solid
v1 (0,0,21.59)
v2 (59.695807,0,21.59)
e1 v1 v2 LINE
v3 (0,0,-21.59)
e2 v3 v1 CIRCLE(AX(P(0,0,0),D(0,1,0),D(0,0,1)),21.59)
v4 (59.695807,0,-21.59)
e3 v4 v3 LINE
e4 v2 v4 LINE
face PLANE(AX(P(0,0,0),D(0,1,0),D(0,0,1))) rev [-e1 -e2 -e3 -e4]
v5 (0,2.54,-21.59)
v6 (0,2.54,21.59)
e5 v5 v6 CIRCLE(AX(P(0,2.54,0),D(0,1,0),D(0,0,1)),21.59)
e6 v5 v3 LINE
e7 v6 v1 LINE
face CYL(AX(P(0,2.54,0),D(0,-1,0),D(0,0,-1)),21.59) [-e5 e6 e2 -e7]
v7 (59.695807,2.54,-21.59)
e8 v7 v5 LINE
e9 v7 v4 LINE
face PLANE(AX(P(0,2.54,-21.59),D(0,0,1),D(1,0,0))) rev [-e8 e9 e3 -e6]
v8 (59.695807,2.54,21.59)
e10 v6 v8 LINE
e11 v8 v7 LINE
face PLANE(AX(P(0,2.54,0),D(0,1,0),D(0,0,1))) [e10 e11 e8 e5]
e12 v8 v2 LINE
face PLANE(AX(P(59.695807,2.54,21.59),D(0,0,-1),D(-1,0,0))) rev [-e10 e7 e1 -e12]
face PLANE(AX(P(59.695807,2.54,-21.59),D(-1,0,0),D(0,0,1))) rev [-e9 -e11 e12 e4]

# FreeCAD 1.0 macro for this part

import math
import FreeCAD as App
import Part
import Sketcher
from FreeCAD import Vector
Q = App.Units.Quantity

doc = App.newDocument("Part")
body = doc.addObject("PartDesign::Body", "Body")

# Sketch on XZ plane
sketch1 = body.newObject("Sketcher::SketchObject", "Sketch")
sketch1.AttachmentSupport = (doc.getObject("XZ_Plane"), [""])
sketch1.MapMode = "FlatFace"
sketch1.addGeometry(Part.LineSegment(Vector(60, -22, 0), Vector(0, -22, 0)), False)
sketch1.addGeometry(Part.ArcOfCircle(Part.Circle(Vector(0, 0, 0), Vector(0, 0, 1), 22), math.radians(90), math.radians(270)), False)
sketch1.addGeometry(Part.LineSegment(Vector(0, 22, 0), Vector(60, 22, 0)), False)
sketch1.addGeometry(Part.LineSegment(Vector(60, 22, 0), Vector(60, -22, 0)), False)
sketch1.addConstraint(Sketcher.Constraint("Tangent", 0, 2, 1, 2))
sketch1.addConstraint(Sketcher.Constraint("Tangent", 1, 1, 2, 1))
sketch1.addConstraint(Sketcher.Constraint("Coincident", 2, 2, 3, 1))
sketch1.addConstraint(Sketcher.Constraint("Coincident", 3, 2, 0, 1))
sketch1.addConstraint(Sketcher.Constraint("Horizontal", 0))
sketch1.addConstraint(Sketcher.Constraint("Horizontal", 2))
sketch1.addConstraint(Sketcher.Constraint("Vertical", 3))
sketch1.addConstraint(Sketcher.Constraint("Coincident", 1, 3, -1, 1))
sketch1.addConstraint(Sketcher.Constraint("Radius", 1, Q("0.85 in")))
sketch1.addConstraint(Sketcher.Constraint("DistanceX", 0, 2, 0, 1, 59.695807))
pad1 = body.newObject("PartDesign::Pad", "Pad")
pad1.Profile = sketch1
pad1.Length = Q("0.1 in")
pad1.Reversed = True

doc.recompute()
